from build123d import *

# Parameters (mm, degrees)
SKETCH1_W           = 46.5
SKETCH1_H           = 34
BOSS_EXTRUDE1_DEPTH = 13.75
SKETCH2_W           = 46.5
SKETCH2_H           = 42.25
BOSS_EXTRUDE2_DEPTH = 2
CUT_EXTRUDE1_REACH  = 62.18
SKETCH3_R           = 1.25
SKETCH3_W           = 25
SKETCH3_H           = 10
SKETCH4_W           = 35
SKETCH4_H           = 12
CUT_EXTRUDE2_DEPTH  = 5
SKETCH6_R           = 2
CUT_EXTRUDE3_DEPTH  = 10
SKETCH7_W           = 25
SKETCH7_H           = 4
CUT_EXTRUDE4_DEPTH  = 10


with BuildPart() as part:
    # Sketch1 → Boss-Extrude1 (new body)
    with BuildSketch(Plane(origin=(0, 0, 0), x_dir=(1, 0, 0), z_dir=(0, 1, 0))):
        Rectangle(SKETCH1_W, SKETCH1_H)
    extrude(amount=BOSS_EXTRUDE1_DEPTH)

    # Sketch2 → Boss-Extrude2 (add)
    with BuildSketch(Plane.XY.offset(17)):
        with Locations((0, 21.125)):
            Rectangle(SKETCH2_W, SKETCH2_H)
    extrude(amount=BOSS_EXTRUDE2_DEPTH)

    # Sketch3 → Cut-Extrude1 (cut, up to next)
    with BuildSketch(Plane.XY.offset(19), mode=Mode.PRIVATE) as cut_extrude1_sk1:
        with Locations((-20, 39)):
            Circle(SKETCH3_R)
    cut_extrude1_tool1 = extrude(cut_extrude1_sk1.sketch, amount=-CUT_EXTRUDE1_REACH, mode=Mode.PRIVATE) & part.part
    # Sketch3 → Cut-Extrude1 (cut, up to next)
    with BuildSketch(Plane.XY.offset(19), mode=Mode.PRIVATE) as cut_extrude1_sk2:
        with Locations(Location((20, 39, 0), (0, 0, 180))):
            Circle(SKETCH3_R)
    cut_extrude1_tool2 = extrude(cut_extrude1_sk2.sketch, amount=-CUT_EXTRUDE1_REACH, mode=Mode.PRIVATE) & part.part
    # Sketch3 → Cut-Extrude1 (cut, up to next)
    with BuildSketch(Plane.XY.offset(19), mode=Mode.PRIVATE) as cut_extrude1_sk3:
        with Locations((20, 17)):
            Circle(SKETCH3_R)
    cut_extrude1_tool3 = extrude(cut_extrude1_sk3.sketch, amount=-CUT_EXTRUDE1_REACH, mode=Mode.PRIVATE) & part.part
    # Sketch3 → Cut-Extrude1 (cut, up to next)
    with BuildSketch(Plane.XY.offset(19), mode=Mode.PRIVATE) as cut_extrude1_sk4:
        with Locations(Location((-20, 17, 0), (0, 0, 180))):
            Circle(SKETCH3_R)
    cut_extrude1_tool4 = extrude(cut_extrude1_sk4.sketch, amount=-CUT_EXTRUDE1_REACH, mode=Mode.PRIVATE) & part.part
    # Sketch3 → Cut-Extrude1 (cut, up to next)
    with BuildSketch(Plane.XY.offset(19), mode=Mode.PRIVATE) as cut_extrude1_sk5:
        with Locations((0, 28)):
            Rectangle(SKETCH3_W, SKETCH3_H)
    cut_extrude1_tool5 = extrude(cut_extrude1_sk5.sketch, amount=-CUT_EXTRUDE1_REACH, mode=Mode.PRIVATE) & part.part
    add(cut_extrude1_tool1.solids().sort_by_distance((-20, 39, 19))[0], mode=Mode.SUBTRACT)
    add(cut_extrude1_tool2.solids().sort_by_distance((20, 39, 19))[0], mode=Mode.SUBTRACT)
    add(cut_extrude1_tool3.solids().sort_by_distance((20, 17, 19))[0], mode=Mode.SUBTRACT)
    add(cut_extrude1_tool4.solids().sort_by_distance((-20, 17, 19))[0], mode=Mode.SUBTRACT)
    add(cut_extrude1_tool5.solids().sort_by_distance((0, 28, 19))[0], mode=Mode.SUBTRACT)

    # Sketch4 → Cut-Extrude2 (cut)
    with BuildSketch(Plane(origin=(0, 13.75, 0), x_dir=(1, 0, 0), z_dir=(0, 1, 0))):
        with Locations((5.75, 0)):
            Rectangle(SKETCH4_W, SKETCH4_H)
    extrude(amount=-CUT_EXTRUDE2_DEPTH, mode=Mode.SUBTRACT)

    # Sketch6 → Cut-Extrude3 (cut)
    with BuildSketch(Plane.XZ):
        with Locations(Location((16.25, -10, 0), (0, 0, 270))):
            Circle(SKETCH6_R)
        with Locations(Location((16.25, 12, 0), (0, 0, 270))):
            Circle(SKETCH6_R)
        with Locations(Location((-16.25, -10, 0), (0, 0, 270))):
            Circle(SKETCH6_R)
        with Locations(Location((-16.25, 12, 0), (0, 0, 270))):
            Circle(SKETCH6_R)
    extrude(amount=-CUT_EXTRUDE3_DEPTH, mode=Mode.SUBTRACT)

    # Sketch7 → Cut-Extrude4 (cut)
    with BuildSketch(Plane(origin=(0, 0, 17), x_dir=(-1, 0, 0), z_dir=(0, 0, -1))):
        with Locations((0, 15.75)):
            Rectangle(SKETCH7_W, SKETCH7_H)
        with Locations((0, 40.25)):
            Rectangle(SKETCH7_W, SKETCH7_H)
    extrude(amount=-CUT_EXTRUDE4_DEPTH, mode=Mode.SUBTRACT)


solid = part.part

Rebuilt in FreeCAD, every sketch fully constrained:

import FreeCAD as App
import Part
import Sketcher

V = App.Vector

doc = App.newDocument("Part")
body = doc.addObject("PartDesign::Body", "Body")

sketch1 = body.newObject("Sketcher::SketchObject", "Sketch")
sketch1.AttachmentSupport = (doc.getObject("XZ_Plane"), [""])
sketch1.MapMode = "FlatFace"
sketch1.addGeometry(Part.LineSegment(V(-23.25, -17, 0), V(-23.25, 17, 0)), False)
sketch1.addGeometry(Part.LineSegment(V(-23.25, 17, 0), V(23.25, 17, 0)), False)
sketch1.addGeometry(Part.LineSegment(V(23.25, 17, 0), V(23.25, -17, 0)), False)
sketch1.addGeometry(Part.LineSegment(V(23.25, -17, 0), V(-23.25, -17, 0)), False)
sketch1.addConstraint(Sketcher.Constraint("Coincident", 0, 2, 1, 1))
sketch1.addConstraint(Sketcher.Constraint("Coincident", 1, 2, 2, 1))
sketch1.addConstraint(Sketcher.Constraint("Coincident", 2, 2, 3, 1))
sketch1.addConstraint(Sketcher.Constraint("Coincident", 3, 2, 0, 1))
sketch1.addConstraint(Sketcher.Constraint("Vertical", 0))
sketch1.addConstraint(Sketcher.Constraint("Horizontal", 1))
sketch1.addConstraint(Sketcher.Constraint("Vertical", 2))
sketch1.addConstraint(Sketcher.Constraint("Horizontal", 3))
sketch1.addConstraint(Sketcher.Constraint("Symmetric", 0, 2, 2, 2, -1, 1))
sketch1.addConstraint(Sketcher.Constraint("DistanceY", 0, 1, 0, 2, 34.0))
sketch1.addConstraint(Sketcher.Constraint("DistanceX", 1, 1, 1, 2, 46.5))
pad1 = body.newObject("PartDesign::Pad", "Pad")
pad1.Profile = sketch1
pad1.Length = 13.75
pad1.Reversed = True

sketch2 = body.newObject("Sketcher::SketchObject", "Sketch001")
sketch2.AttachmentSupport = (doc.getObject("XY_Plane"), [""])
sketch2.MapMode = "FlatFace"
sketch2.AttachmentOffset = App.Placement(V(0, 0, 17), App.Rotation())
sketch2.addGeometry(Part.LineSegment(V(-23.25, 42.25, 0), V(-23.25, 0, 0)), False)
sketch2.addGeometry(Part.LineSegment(V(-23.25, 0, 0), V(23.25, 0, 0)), False)
sketch2.addGeometry(Part.LineSegment(V(23.25, 0, 0), V(23.25, 42.25, 0)), False)
sketch2.addGeometry(Part.LineSegment(V(23.25, 42.25, 0), V(-23.25, 42.25, 0)), False)
sketch2.addConstraint(Sketcher.Constraint("Coincident", 0, 2, 1, 1))
sketch2.addConstraint(Sketcher.Constraint("Coincident", 1, 2, 2, 1))
sketch2.addConstraint(Sketcher.Constraint("Coincident", 2, 2, 3, 1))
sketch2.addConstraint(Sketcher.Constraint("Coincident", 3, 2, 0, 1))
sketch2.addConstraint(Sketcher.Constraint("Vertical", 0))
sketch2.addConstraint(Sketcher.Constraint("Horizontal", 1))
sketch2.addConstraint(Sketcher.Constraint("Vertical", 2))
sketch2.addConstraint(Sketcher.Constraint("Horizontal", 3))
sketch2.addConstraint(Sketcher.Constraint("Symmetric", 0, 2, 1, 2, -1, 1))
sketch2.addConstraint(Sketcher.Constraint("DistanceX", 1, 1, 1, 2, 46.5))
sketch2.addConstraint(Sketcher.Constraint("DistanceY", 0, 2, 0, 1, 42.25))
pad2 = body.newObject("PartDesign::Pad", "Pad001")
pad2.Profile = sketch2
pad2.Length = 2

sketch3 = body.newObject("Sketcher::SketchObject", "Sketch002")
sketch3.AttachmentSupport = (doc.getObject("XY_Plane"), [""])
sketch3.MapMode = "FlatFace"
sketch3.AttachmentOffset = App.Placement(V(0, 0, 19), App.Rotation())
sketch3.addGeometry(Part.Circle(V(-20, 39, 0), V(0, 0, 1), 1.25), False)
sketch3.addConstraint(Sketcher.Constraint("Diameter", 0, 2.5))
sketch3.addConstraint(Sketcher.Constraint("DistanceX", 0, 3, -1, 1, 20.0))
sketch3.addConstraint(Sketcher.Constraint("DistanceY", -1, 1, 0, 3, 39.0))
pocket1 = body.newObject("PartDesign::Pocket", "Pocket")
pocket1.Profile = sketch3
pocket1.Type = "UpToFirst"

sketch4 = body.newObject("Sketcher::SketchObject", "Sketch003")
sketch4.AttachmentSupport = (doc.getObject("XY_Plane"), [""])
sketch4.MapMode = "FlatFace"
sketch4.AttachmentOffset = App.Placement(V(0, 0, 19), App.Rotation())
sketch4.addGeometry(Part.Circle(V(20, 39, 0), V(0, 0, 1), 1.25), False)
sketch4.addConstraint(Sketcher.Constraint("Diameter", 0, 2.5))
sketch4.addConstraint(Sketcher.Constraint("DistanceX", -1, 1, 0, 3, 20.0))
sketch4.addConstraint(Sketcher.Constraint("DistanceY", -1, 1, 0, 3, 39.0))
pocket2 = body.newObject("PartDesign::Pocket", "Pocket001")
pocket2.Profile = sketch4
pocket2.Type = "UpToFirst"

sketch5 = body.newObject("Sketcher::SketchObject", "Sketch004")
sketch5.AttachmentSupport = (doc.getObject("XY_Plane"), [""])
sketch5.MapMode = "FlatFace"
sketch5.AttachmentOffset = App.Placement(V(0, 0, 19), App.Rotation())
sketch5.addGeometry(Part.Circle(V(20, 17, 0), V(0, 0, 1), 1.25), False)
sketch5.addConstraint(Sketcher.Constraint("Diameter", 0, 2.5))
sketch5.addConstraint(Sketcher.Constraint("DistanceX", -1, 1, 0, 3, 20.0))
sketch5.addConstraint(Sketcher.Constraint("DistanceY", -1, 1, 0, 3, 17.0))
pocket3 = body.newObject("PartDesign::Pocket", "Pocket002")
pocket3.Profile = sketch5
pocket3.Type = "UpToFirst"

sketch6 = body.newObject("Sketcher::SketchObject", "Sketch005")
sketch6.AttachmentSupport = (doc.getObject("XY_Plane"), [""])
sketch6.MapMode = "FlatFace"
sketch6.AttachmentOffset = App.Placement(V(0, 0, 19), App.Rotation())
sketch6.addGeometry(Part.Circle(V(-20, 17, 0), V(0, 0, 1), 1.25), False)
sketch6.addConstraint(Sketcher.Constraint("Diameter", 0, 2.5))
sketch6.addConstraint(Sketcher.Constraint("DistanceX", 0, 3, -1, 1, 20.0))
sketch6.addConstraint(Sketcher.Constraint("DistanceY", -1, 1, 0, 3, 17.0))
pocket4 = body.newObject("PartDesign::Pocket", "Pocket003")
pocket4.Profile = sketch6
pocket4.Type = "UpToFirst"

sketch7 = body.newObject("Sketcher::SketchObject", "Sketch006")
sketch7.AttachmentSupport = (doc.getObject("XY_Plane"), [""])
sketch7.MapMode = "FlatFace"
sketch7.AttachmentOffset = App.Placement(V(0, 0, 19), App.Rotation())
sketch7.addGeometry(Part.LineSegment(V(-12.5, 33, 0), V(-12.5, 23, 0)), False)
sketch7.addGeometry(Part.LineSegment(V(-12.5, 23, 0), V(12.5, 23, 0)), False)
sketch7.addGeometry(Part.LineSegment(V(12.5, 23, 0), V(12.5, 33, 0)), False)
sketch7.addGeometry(Part.LineSegment(V(12.5, 33, 0), V(-12.5, 33, 0)), False)
sketch7.addConstraint(Sketcher.Constraint("Coincident", 0, 2, 1, 1))
sketch7.addConstraint(Sketcher.Constraint("Coincident", 1, 2, 2, 1))
sketch7.addConstraint(Sketcher.Constraint("Coincident", 2, 2, 3, 1))
sketch7.addConstraint(Sketcher.Constraint("Coincident", 3, 2, 0, 1))
sketch7.addConstraint(Sketcher.Constraint("Vertical", 0))
sketch7.addConstraint(Sketcher.Constraint("Horizontal", 1))
sketch7.addConstraint(Sketcher.Constraint("Vertical", 2))
sketch7.addConstraint(Sketcher.Constraint("Horizontal", 3))
sketch7.addConstraint(Sketcher.Constraint("DistanceX", 1, 1, 1, 2, 25.0))
sketch7.addConstraint(Sketcher.Constraint("DistanceY", 0, 2, 0, 1, 10.0))
sketch7.addConstraint(Sketcher.Constraint("DistanceY", -1, 1, 0, 2, 23.0))
sketch7.addConstraint(Sketcher.Constraint("DistanceX", 0, 2, -1, 1, 12.5))
pocket5 = body.newObject("PartDesign::Pocket", "Pocket004")
pocket5.Profile = sketch7
pocket5.Type = "UpToFirst"

sketch8 = body.newObject("Sketcher::SketchObject", "Sketch007")
sketch8.AttachmentSupport = (doc.getObject("XZ_Plane"), [""])
sketch8.MapMode = "FlatFace"
sketch8.AttachmentOffset = App.Placement(V(0, 0, -13.75), App.Rotation())
sketch8.addGeometry(Part.LineSegment(V(-11.75, -6, 0), V(-11.75, 6, 0)), False)
sketch8.addGeometry(Part.LineSegment(V(-11.75, 6, 0), V(23.25, 6, 0)), False)
sketch8.addGeometry(Part.LineSegment(V(23.25, 6, 0), V(23.25, -6, 0)), False)
sketch8.addGeometry(Part.LineSegment(V(23.25, -6, 0), V(-11.75, -6, 0)), False)
sketch8.addConstraint(Sketcher.Constraint("Coincident", 0, 2, 1, 1))
sketch8.addConstraint(Sketcher.Constraint("Coincident", 1, 2, 2, 1))
sketch8.addConstraint(Sketcher.Constraint("Coincident", 2, 2, 3, 1))
sketch8.addConstraint(Sketcher.Constraint("Coincident", 3, 2, 0, 1))
sketch8.addConstraint(Sketcher.Constraint("Vertical", 0))
sketch8.addConstraint(Sketcher.Constraint("Horizontal", 1))
sketch8.addConstraint(Sketcher.Constraint("Vertical", 2))
sketch8.addConstraint(Sketcher.Constraint("Horizontal", 3))
sketch8.addConstraint(Sketcher.Constraint("DistanceX", 1, 1, 1, 2, 35.0))
sketch8.addConstraint(Sketcher.Constraint("DistanceY", 0, 1, 0, 2, 12.0))
sketch8.addConstraint(Sketcher.Constraint("DistanceY", -1, 1, 0, 2, 6.0))
sketch8.addConstraint(Sketcher.Constraint("DistanceX", 0, 2, -1, 1, 11.75))
pocket6 = body.newObject("PartDesign::Pocket", "Pocket005")
pocket6.Profile = sketch8
pocket6.Length = 5
pocket6.Reversed = True

sketch9 = body.newObject("Sketcher::SketchObject", "Sketch008")
sketch9.AttachmentSupport = (doc.getObject("XZ_Plane"), [""])
sketch9.MapMode = "FlatFace"
sketch9.addGeometry(Part.Circle(V(16.25, -10, 0), V(0, 0, 1), 2), False)
sketch9.addGeometry(Part.Circle(V(16.25, 12, 0), V(0, 0, 1), 2), False)
sketch9.addGeometry(Part.Circle(V(-16.25, -10, 0), V(0, 0, 1), 2), False)
sketch9.addGeometry(Part.Circle(V(-16.25, 12, 0), V(0, 0, 1), 2), False)
sketch9.addConstraint(Sketcher.Constraint("Equal", 0, 1))
sketch9.addConstraint(Sketcher.Constraint("Equal", 1, 2))
sketch9.addConstraint(Sketcher.Constraint("Equal", 2, 3))
sketch9.addConstraint(Sketcher.Constraint("Symmetric", 0, 3, 2, 3, -2))
sketch9.addConstraint(Sketcher.Constraint("Symmetric", 1, 3, 3, 3, -2))
sketch9.addConstraint(Sketcher.Constraint("Vertical", 0, 3, 1, 3))
sketch9.addConstraint(Sketcher.Constraint("Diameter", 0, 4.0))
sketch9.addConstraint(Sketcher.Constraint("DistanceY", 0, 3, -1, 1, 10.0))
sketch9.addConstraint(Sketcher.Constraint("DistanceY", -1, 1, 1, 3, 12.0))
sketch9.addConstraint(Sketcher.Constraint("DistanceX", 2, 3, 0, 3, 32.5))
pocket7 = body.newObject("PartDesign::Pocket", "Pocket006")
pocket7.Profile = sketch9
pocket7.Length = 10

sketch10 = body.newObject("Sketcher::SketchObject", "Sketch009")
sketch10.AttachmentSupport = (doc.getObject("XY_Plane"), [""])
sketch10.MapMode = "FlatFace"
sketch10.AttachmentOffset = App.Placement(V(0, 0, 17), App.Rotation())
sketch10.addGeometry(Part.LineSegment(V(12.5, 17.75, 0), V(12.5, 13.75, 0)), False)
sketch10.addGeometry(Part.LineSegment(V(12.5, 13.75, 0), V(-12.5, 13.75, 0)), False)
sketch10.addGeometry(Part.LineSegment(V(-12.5, 13.75, 0), V(-12.5, 17.75, 0)), False)
sketch10.addGeometry(Part.LineSegment(V(-12.5, 17.75, 0), V(12.5, 17.75, 0)), False)
sketch10.addGeometry(Part.LineSegment(V(12.5, 42.25, 0), V(12.5, 38.25, 0)), False)
sketch10.addGeometry(Part.LineSegment(V(12.5, 38.25, 0), V(-12.5, 38.25, 0)), False)
sketch10.addGeometry(Part.LineSegment(V(-12.5, 38.25, 0), V(-12.5, 42.25, 0)), False)
sketch10.addGeometry(Part.LineSegment(V(-12.5, 42.25, 0), V(12.5, 42.25, 0)), False)
sketch10.addConstraint(Sketcher.Constraint("Coincident", 0, 2, 1, 1))
sketch10.addConstraint(Sketcher.Constraint("Coincident", 1, 2, 2, 1))
sketch10.addConstraint(Sketcher.Constraint("Coincident", 2, 2, 3, 1))
sketch10.addConstraint(Sketcher.Constraint("Coincident", 3, 2, 0, 1))
sketch10.addConstraint(Sketcher.Constraint("Coincident", 4, 2, 5, 1))
sketch10.addConstraint(Sketcher.Constraint("Coincident", 5, 2, 6, 1))
sketch10.addConstraint(Sketcher.Constraint("Coincident", 6, 2, 7, 1))
sketch10.addConstraint(Sketcher.Constraint("Coincident", 7, 2, 4, 1))
sketch10.addConstraint(Sketcher.Constraint("Vertical", 0))
sketch10.addConstraint(Sketcher.Constraint("Horizontal", 1))
sketch10.addConstraint(Sketcher.Constraint("Vertical", 2))
sketch10.addConstraint(Sketcher.Constraint("Horizontal", 3))
sketch10.addConstraint(Sketcher.Constraint("Vertical", 4))
sketch10.addConstraint(Sketcher.Constraint("Horizontal", 5))
sketch10.addConstraint(Sketcher.Constraint("Vertical", 6))
sketch10.addConstraint(Sketcher.Constraint("Horizontal", 7))
sketch10.addConstraint(Sketcher.Constraint("Vertical", 3, 2, 4, 2))
sketch10.addConstraint(Sketcher.Constraint("Vertical", 2, 2, 5, 2))
sketch10.addConstraint(Sketcher.Constraint("Equal", 2, 4))
sketch10.addConstraint(Sketcher.Constraint("DistanceX", 1, 2, 1, 1, 25.0))
sketch10.addConstraint(Sketcher.Constraint("DistanceY", 0, 2, 0, 1, 4.0))
sketch10.addConstraint(Sketcher.Constraint("DistanceX", -1, 1, 0, 2, 12.5))
sketch10.addConstraint(Sketcher.Constraint("DistanceY", 3, 2, 4, 2, 20.5))
sketch10.addConstraint(Sketcher.Constraint("DistanceY", -1, 1, 0, 2, 13.75))
pocket8 = body.newObject("PartDesign::Pocket", "Pocket007")
pocket8.Profile = sketch10
pocket8.Length = 10
pocket8.Reversed = True

doc.recompute()
